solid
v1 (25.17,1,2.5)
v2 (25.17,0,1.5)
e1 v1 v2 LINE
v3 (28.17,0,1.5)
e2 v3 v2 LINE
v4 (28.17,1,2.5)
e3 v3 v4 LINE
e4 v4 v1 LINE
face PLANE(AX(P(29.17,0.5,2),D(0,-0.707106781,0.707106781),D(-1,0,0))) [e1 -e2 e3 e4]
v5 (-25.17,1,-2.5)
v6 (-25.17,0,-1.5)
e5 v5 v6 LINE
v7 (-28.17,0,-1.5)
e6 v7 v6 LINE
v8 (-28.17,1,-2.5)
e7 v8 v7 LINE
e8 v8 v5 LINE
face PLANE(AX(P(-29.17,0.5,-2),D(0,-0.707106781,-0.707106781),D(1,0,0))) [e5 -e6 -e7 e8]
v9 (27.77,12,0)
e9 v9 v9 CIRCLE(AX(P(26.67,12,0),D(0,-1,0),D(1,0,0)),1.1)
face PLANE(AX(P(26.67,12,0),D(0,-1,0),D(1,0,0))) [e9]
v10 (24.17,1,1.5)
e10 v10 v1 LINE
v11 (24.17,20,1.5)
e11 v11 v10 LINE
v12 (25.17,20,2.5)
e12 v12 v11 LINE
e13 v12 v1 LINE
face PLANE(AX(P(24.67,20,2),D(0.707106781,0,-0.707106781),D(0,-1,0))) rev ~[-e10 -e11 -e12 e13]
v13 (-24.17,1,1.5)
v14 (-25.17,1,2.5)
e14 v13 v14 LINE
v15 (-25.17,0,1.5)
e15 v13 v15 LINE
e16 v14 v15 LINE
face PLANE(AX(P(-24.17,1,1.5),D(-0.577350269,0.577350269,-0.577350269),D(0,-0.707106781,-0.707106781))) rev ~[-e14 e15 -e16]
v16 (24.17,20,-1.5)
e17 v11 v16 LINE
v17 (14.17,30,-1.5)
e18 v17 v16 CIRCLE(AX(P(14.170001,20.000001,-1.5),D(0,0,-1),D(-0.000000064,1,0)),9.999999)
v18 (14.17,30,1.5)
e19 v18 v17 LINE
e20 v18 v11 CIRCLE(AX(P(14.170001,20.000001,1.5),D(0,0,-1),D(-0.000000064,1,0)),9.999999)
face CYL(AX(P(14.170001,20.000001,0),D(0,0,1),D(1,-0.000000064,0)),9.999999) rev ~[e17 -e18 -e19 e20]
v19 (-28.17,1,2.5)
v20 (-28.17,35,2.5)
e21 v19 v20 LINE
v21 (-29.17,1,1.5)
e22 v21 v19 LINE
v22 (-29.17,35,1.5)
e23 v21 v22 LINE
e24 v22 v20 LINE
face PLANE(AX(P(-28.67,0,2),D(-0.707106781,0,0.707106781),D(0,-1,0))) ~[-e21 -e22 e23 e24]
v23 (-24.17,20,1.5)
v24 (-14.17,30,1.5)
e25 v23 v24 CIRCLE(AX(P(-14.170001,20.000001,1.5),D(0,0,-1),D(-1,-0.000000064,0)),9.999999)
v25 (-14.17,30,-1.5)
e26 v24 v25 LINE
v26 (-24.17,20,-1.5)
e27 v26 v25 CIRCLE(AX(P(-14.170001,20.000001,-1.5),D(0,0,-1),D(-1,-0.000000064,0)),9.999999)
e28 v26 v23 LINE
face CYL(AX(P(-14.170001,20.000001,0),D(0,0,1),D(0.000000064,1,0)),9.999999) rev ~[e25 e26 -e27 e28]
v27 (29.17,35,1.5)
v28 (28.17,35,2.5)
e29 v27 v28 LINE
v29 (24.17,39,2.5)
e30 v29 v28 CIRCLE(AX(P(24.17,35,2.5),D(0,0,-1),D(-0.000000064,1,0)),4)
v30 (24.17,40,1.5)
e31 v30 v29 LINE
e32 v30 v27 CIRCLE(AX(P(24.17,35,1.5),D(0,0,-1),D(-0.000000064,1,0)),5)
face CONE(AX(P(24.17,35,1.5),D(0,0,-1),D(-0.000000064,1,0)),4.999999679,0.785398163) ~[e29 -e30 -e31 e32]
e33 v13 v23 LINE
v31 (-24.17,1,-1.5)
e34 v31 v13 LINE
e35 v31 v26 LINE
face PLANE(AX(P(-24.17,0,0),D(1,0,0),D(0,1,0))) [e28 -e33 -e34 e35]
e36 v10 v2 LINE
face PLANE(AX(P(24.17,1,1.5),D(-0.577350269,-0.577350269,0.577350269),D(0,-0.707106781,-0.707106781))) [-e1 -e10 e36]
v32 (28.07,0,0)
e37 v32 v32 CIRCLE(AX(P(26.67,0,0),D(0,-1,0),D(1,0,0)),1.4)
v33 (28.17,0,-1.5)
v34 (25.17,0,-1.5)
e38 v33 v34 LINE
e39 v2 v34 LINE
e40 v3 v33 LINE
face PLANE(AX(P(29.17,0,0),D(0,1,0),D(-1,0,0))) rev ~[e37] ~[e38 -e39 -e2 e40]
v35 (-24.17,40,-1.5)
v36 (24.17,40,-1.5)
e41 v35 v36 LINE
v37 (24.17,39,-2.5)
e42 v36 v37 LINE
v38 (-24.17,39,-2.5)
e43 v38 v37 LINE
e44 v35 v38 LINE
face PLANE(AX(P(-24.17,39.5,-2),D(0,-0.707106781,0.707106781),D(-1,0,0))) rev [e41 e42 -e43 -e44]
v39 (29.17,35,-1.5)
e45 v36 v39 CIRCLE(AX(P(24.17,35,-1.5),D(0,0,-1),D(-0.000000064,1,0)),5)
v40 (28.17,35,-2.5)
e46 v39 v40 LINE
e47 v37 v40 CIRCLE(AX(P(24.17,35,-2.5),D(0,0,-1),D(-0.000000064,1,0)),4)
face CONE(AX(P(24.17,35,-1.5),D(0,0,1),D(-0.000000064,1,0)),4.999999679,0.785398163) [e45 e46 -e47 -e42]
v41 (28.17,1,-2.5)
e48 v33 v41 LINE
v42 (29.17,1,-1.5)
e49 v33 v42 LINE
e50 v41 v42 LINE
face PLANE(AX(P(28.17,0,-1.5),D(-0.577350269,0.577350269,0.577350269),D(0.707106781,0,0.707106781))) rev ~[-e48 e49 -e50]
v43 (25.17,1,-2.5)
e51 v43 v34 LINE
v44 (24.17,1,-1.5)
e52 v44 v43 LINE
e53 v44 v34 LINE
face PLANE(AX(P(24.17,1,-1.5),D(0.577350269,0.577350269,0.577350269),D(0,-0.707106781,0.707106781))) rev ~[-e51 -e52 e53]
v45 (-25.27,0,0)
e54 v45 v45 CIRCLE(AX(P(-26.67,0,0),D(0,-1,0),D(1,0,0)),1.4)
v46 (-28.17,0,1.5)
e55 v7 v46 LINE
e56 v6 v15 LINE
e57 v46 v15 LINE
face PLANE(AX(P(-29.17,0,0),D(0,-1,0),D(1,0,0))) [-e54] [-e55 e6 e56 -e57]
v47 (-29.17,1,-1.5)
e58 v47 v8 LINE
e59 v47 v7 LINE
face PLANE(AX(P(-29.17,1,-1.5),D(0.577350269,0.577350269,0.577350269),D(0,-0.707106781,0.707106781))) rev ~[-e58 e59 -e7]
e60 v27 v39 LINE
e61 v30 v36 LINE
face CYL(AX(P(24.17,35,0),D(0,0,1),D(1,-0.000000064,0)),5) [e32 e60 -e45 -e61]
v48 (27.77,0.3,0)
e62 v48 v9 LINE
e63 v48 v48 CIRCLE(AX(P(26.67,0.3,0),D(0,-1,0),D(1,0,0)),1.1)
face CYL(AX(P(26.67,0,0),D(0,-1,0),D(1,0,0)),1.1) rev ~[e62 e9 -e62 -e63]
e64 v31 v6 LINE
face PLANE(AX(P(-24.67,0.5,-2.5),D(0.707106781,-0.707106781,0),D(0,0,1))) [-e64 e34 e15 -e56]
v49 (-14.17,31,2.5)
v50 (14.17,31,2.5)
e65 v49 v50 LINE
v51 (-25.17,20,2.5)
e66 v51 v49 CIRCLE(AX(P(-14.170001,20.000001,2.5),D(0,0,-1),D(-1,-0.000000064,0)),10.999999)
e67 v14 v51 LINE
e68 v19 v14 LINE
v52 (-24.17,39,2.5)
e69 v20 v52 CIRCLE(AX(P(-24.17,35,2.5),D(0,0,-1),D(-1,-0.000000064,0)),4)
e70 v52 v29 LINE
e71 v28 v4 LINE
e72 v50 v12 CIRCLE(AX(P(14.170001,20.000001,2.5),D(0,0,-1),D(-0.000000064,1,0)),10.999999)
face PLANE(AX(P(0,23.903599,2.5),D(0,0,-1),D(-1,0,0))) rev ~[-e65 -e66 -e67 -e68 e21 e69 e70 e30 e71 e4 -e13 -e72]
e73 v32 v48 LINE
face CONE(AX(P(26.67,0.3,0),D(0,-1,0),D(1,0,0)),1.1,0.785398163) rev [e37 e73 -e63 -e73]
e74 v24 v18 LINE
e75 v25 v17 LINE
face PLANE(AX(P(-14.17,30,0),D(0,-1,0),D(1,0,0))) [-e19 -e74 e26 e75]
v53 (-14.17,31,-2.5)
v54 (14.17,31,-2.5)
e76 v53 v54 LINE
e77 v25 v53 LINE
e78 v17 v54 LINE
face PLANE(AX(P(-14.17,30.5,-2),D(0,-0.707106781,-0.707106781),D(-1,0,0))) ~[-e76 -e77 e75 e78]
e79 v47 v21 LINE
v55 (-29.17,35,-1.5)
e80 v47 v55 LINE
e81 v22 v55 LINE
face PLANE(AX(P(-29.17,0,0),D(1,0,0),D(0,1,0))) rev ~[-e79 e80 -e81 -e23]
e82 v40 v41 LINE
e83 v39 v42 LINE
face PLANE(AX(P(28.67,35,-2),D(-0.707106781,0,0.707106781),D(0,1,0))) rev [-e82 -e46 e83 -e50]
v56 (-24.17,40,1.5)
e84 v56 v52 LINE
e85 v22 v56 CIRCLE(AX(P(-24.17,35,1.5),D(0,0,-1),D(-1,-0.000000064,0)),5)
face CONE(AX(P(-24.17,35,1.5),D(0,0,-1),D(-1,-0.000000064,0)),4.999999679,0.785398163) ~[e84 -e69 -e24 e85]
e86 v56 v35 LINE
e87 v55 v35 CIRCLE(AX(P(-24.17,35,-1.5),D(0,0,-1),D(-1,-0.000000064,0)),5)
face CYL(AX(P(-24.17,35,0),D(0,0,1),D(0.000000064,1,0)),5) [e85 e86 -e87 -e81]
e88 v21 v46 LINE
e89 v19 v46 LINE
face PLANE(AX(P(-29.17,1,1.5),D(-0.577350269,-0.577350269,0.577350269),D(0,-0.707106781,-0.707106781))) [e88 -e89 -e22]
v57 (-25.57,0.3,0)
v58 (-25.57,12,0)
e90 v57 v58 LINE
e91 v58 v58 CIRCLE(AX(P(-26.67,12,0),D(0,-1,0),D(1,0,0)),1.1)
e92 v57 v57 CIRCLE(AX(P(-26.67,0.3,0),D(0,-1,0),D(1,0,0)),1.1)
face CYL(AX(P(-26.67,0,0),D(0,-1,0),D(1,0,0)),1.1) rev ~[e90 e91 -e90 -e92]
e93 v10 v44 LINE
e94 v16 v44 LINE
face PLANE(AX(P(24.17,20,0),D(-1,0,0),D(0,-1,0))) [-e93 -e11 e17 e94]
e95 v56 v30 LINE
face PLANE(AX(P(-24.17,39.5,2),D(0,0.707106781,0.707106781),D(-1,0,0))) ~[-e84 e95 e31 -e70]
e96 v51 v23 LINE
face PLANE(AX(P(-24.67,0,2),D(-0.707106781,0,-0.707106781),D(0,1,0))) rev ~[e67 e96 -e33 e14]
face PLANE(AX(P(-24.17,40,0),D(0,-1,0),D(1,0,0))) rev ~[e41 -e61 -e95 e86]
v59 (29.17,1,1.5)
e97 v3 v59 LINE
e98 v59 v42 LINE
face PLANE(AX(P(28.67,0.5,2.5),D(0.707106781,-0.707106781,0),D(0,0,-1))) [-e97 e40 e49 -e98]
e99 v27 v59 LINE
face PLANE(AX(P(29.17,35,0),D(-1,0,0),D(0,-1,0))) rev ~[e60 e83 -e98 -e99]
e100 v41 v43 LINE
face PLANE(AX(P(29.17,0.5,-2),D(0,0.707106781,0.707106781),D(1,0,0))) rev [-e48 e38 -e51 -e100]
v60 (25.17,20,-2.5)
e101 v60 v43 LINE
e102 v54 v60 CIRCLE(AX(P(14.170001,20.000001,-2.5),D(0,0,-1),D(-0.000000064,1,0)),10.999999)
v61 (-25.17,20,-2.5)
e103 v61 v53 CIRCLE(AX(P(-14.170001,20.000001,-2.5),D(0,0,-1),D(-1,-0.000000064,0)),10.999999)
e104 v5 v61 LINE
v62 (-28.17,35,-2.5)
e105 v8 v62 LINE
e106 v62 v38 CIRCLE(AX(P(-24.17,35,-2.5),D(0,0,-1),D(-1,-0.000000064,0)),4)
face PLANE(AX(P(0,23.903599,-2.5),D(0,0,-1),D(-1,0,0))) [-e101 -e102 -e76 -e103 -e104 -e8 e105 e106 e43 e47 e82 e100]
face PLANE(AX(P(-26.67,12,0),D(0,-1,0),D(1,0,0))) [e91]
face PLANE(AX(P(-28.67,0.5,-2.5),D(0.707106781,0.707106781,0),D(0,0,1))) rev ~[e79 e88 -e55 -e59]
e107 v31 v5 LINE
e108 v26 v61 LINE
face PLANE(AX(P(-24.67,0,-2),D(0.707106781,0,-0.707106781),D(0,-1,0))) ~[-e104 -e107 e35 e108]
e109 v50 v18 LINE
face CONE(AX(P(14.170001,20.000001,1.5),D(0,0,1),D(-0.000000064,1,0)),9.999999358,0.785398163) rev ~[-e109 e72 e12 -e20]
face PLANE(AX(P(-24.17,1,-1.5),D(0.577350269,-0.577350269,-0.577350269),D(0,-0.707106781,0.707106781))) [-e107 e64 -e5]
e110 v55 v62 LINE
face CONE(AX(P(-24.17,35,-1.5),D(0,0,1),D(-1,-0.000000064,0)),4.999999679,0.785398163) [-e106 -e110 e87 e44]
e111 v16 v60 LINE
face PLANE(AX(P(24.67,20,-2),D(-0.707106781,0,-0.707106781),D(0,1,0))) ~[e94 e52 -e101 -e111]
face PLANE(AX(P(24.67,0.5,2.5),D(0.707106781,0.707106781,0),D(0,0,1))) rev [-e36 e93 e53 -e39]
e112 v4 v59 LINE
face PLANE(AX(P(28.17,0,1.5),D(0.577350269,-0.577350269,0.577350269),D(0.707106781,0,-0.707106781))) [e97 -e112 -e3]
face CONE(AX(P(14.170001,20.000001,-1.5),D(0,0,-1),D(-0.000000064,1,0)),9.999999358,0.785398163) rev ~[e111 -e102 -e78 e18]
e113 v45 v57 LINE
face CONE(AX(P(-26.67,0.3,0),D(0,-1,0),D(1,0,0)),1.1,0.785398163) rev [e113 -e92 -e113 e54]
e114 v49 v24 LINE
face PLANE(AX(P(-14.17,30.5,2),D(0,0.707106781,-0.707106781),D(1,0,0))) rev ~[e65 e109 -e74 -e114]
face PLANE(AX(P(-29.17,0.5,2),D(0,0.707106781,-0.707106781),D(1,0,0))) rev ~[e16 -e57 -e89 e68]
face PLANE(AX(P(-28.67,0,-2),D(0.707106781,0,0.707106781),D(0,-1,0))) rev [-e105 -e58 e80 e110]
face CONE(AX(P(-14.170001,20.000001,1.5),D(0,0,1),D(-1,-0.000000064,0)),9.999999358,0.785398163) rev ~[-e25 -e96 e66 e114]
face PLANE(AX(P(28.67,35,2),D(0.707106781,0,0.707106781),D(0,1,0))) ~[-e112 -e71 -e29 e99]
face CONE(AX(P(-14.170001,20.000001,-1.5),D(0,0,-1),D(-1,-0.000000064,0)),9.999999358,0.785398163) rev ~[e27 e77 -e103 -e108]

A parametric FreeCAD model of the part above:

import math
import FreeCAD as App
import Part
import Sketcher

V = App.Vector


def edges_at(feature, points):
    """Names of the edges that pass closest to the given points."""
    edges = feature.Shape.Edges
    near = lambda p: min(range(len(edges)), key=lambda i: edges[i].distToShape(Part.Vertex(*p))[0])
    return sorted({f"Edge{near(p) + 1}" for p in points})

doc = App.newDocument("Part")
body = doc.addObject("PartDesign::Body", "Body")

sketch1 = body.newObject("Sketcher::SketchObject", "Sketch")
sketch1.AttachmentSupport = (doc.getObject("XY_Plane"), [""])
sketch1.MapMode = "FlatFace"
sketch1.addGeometry([
    Part.LineSegment(V(-29.2, 35, 0), V(-29.2, 0, 0)),
    Part.LineSegment(V(-29.2, 0, 0), V(-24.2, 0, 0)),
    Part.LineSegment(V(-24.2, 0, 0), V(-24.2, 20, 0)),
    Part.ArcOfCircle(Part.Circle(V(-14.2, 20, 0), V(0, 0, 1), 10), math.radians(90), math.radians(180)),
    Part.LineSegment(V(-14.2, 30, 0), V(14.2, 30, 0)),
    Part.ArcOfCircle(Part.Circle(V(14.2, 20, 0), V(0, 0, 1), 10), math.radians(0), math.radians(90)),
    Part.LineSegment(V(24.2, 20, 0), V(24.2, 0, 0)),
    Part.LineSegment(V(24.2, 0, 0), V(29.2, 0, 0)),
    Part.LineSegment(V(29.2, 0, 0), V(29.2, 35, 0)),
    Part.ArcOfCircle(Part.Circle(V(24.2, 35, 0), V(0, 0, 1), 5), math.radians(0), math.radians(90)),
    Part.LineSegment(V(24.2, 40, 0), V(-24.2, 40, 0)),
    Part.ArcOfCircle(Part.Circle(V(-24.2, 35, 0), V(0, 0, 1), 5), math.radians(90), math.radians(180)),
], False)
sketch1.addConstraint([
    Sketcher.Constraint("Coincident", 0, 2, 1, 1),
    Sketcher.Constraint("Coincident", 1, 2, 2, 1),
    Sketcher.Constraint("Tangent", 2, 2, 3, 2),
    Sketcher.Constraint("Tangent", 3, 1, 4, 1),
    Sketcher.Constraint("Tangent", 4, 2, 5, 2),
    Sketcher.Constraint("Tangent", 5, 1, 6, 1),
    Sketcher.Constraint("Coincident", 6, 2, 7, 1),
    Sketcher.Constraint("Coincident", 7, 2, 8, 1),
    Sketcher.Constraint("Tangent", 8, 2, 9, 1),
    Sketcher.Constraint("Tangent", 9, 2, 10, 1),
    Sketcher.Constraint("Tangent", 10, 2, 11, 1),
    Sketcher.Constraint("Tangent", 11, 2, 0, 1),
    Sketcher.Constraint("Vertical", 0),
    Sketcher.Constraint("Horizontal", 1),
    Sketcher.Constraint("Vertical", 2),
    Sketcher.Constraint("Horizontal", 4),
    Sketcher.Constraint("Vertical", 6),
    Sketcher.Constraint("Horizontal", 7),
    Sketcher.Constraint("Vertical", 8),
    Sketcher.Constraint("Horizontal", 10),
    Sketcher.Constraint("Equal", 3, 5),
    Sketcher.Constraint("Equal", 9, 11),
    Sketcher.Constraint("Symmetric", 1, 2, 6, 2, -1, 1),
    Sketcher.Constraint("Symmetric", 0, 2, 7, 2, -2),
    Sketcher.Constraint("Vertical", 11, 3, 1, 2),
    Sketcher.Constraint("Radius", 3, 9.999999),
    Sketcher.Constraint("Radius", 9, 5.0),
    Sketcher.Constraint("DistanceY", 0, 2, 0, 1, 35.0),
    Sketcher.Constraint("DistanceY", 2, 1, 2, 2, 20.0),
    Sketcher.Constraint("DistanceX", 4, 1, 4, 2, 28.34),
])
pad1 = body.newObject("PartDesign::Pad", "Pad")
pad1.Profile = sketch1
pad1.Length = 5
pad1.Midplane = True
doc.recompute()

chamfer = body.newObject("PartDesign::Chamfer", "Chamfer")
chamfer.Base = (pad1, ["Edge1"])
chamfer.UseAllEdges = True
chamfer.Size = 1

sketch2 = body.newObject("Sketcher::SketchObject", "Sketch001")
sketch2.AttachmentSupport = (doc.getObject("XZ_Plane"), [""])
sketch2.MapMode = "FlatFace"
sketch2.addGeometry([
    Part.Circle(V(-26.7, 0, 0), V(0, 0, 1), 1.1),
    Part.Circle(V(26.7, 0, 0), V(0, 0, 1), 1.1),
], False)
sketch2.addConstraint([
    Sketcher.Constraint("Equal", 0, 1),
    Sketcher.Constraint("Symmetric", 0, 3, 1, 3, -1, 1),
    Sketcher.Constraint("PointOnObject", 0, 3, -1),
    Sketcher.Constraint("Diameter", 0, 2.2),
    Sketcher.Constraint("DistanceX", 0, 3, -1, 1, 26.67),
])
pocket1 = body.newObject("PartDesign::Pocket", "Pocket")
pocket1.Profile = sketch2
pocket1.Length = 12
doc.recompute()

chamfer2 = body.newObject("PartDesign::Chamfer", "Chamfer001")
chamfer2.Base = (pocket1, edges_at(pocket1, [(-27.77, 0, 0), (25.57, 0, 0)]))
chamfer2.Size = 0.3

doc.recompute()
